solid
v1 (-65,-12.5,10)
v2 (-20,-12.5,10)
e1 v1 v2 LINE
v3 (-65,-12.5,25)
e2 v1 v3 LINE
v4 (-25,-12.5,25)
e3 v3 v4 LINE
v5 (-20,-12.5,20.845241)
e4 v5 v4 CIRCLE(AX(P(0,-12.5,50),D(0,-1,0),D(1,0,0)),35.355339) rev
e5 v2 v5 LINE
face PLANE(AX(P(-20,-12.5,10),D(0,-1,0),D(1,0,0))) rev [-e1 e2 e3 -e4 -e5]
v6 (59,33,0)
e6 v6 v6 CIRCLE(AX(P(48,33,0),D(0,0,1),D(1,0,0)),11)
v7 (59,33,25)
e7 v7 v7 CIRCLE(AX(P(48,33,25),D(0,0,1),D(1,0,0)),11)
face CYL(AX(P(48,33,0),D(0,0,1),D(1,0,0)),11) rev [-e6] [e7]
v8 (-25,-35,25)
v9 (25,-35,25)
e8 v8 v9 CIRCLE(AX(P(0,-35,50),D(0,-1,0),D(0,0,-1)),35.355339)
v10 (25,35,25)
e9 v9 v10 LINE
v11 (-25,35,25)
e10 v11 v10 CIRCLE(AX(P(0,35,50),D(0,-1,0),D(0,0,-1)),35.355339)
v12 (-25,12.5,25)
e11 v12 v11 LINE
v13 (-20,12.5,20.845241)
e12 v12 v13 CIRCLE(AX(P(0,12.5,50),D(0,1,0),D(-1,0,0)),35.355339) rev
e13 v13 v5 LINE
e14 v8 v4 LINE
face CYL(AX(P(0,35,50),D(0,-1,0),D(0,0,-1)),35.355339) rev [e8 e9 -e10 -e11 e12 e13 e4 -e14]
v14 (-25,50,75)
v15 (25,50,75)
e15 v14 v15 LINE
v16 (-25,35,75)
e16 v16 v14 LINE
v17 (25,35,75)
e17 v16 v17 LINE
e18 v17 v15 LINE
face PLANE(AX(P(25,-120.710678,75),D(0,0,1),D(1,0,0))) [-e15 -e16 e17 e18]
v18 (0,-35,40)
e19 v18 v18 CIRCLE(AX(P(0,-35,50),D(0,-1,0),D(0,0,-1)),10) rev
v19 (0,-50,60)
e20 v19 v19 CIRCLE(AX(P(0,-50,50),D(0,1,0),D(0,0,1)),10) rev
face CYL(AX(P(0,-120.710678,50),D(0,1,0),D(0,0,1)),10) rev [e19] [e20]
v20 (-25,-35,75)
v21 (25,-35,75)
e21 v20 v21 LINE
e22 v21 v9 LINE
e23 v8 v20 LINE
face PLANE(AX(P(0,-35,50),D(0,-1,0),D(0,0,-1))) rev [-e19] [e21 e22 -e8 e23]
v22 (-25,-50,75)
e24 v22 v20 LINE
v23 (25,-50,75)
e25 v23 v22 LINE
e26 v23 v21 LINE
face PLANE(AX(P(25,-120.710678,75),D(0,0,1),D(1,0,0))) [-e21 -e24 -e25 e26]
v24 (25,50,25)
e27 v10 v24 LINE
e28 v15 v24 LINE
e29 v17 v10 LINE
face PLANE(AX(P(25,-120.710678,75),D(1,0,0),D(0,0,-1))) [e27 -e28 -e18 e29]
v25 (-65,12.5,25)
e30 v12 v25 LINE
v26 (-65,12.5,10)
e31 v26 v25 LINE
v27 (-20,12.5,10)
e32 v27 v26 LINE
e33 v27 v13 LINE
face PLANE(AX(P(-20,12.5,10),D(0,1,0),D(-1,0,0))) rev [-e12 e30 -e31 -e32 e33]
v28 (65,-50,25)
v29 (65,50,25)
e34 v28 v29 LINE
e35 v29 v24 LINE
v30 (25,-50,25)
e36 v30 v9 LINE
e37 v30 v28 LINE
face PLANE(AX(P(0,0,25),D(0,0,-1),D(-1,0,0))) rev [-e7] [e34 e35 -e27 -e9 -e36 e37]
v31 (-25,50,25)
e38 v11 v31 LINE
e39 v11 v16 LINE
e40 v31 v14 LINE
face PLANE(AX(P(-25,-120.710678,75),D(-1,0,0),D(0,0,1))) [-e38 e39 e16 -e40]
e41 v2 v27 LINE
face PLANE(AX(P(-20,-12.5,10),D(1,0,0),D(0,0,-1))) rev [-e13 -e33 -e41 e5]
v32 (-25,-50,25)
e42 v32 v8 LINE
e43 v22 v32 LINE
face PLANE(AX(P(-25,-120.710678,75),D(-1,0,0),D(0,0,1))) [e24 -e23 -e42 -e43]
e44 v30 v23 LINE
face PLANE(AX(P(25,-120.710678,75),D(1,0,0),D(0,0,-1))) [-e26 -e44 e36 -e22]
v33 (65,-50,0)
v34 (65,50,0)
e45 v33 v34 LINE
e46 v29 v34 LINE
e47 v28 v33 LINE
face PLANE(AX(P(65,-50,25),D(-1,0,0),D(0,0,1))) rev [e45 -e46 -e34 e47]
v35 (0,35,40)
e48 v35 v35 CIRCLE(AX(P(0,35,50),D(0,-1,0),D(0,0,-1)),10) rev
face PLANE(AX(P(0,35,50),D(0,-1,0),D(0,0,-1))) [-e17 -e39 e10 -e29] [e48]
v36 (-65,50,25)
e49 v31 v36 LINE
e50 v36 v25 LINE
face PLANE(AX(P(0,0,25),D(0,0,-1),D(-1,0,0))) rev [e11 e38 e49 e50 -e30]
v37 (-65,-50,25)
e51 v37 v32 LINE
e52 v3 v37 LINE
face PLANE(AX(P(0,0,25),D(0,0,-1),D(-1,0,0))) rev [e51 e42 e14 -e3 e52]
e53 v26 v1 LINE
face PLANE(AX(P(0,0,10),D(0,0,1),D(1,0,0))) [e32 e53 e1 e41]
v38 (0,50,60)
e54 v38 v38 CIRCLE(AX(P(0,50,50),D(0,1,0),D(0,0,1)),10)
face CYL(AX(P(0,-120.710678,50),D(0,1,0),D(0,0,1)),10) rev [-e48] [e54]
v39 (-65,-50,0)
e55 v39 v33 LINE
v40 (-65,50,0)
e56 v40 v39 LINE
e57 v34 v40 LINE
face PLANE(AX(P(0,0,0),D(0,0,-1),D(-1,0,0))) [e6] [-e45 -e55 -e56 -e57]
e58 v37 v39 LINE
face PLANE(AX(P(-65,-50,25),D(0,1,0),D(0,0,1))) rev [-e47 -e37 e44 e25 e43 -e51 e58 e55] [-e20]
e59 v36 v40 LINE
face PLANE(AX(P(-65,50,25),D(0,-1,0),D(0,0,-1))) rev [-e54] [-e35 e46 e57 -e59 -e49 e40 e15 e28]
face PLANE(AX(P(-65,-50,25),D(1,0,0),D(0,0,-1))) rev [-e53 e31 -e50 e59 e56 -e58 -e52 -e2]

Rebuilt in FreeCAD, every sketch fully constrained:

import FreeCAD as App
import Part
import Sketcher

doc = App.newDocument("Part")
body = doc.addObject("PartDesign::Body", "Body")

# Sketch on XY plane
sketch1 = body.newObject("Sketcher::SketchObject", "Sketch")
sketch1.AttachmentSupport = (doc.getObject("XY_Plane"), [""])
sketch1.MapMode = "FlatFace"
sketch1.addGeometry(Part.LineSegment(App.Vector(-65, 50, 0), App.Vector(-65, -50, 0)), False)
sketch1.addGeometry(Part.LineSegment(App.Vector(-65, -50, 0), App.Vector(65, -50, 0)), False)
sketch1.addGeometry(Part.LineSegment(App.Vector(65, -50, 0), App.Vector(65, 50, 0)), False)
sketch1.addGeometry(Part.LineSegment(App.Vector(65, 50, 0), App.Vector(-65, 50, 0)), False)
sketch1.addConstraint(Sketcher.Constraint("Coincident", 0, 2, 1, 1))
sketch1.addConstraint(Sketcher.Constraint("Coincident", 1, 2, 2, 1))
sketch1.addConstraint(Sketcher.Constraint("Coincident", 2, 2, 3, 1))
sketch1.addConstraint(Sketcher.Constraint("Coincident", 3, 2, 0, 1))
sketch1.addConstraint(Sketcher.Constraint("Vertical", 0))
sketch1.addConstraint(Sketcher.Constraint("Horizontal", 1))
sketch1.addConstraint(Sketcher.Constraint("Vertical", 2))
sketch1.addConstraint(Sketcher.Constraint("Horizontal", 3))
sketch1.addConstraint(Sketcher.Constraint("Symmetric", 0, 2, 2, 2, -1, 1))
sketch1.addConstraint(Sketcher.Constraint("DistanceX", 1, 1, 1, 2, 130.0))
sketch1.addConstraint(Sketcher.Constraint("DistanceY", 0, 2, 0, 1, 100.0))
pad1 = body.newObject("PartDesign::Pad", "Pad")
pad1.Profile = sketch1
pad1.Length = 25

# Sketch on XZ plane
sketch2 = body.newObject("Sketcher::SketchObject", "Sketch001")
sketch2.AttachmentSupport = (doc.getObject("XZ_Plane"), [""])
sketch2.MapMode = "FlatFace"
sketch2.AttachmentOffset = App.Placement(App.Vector(0, 0, -50), App.Rotation())
sketch2.addGeometry(Part.LineSegment(App.Vector(-25, 25, 0), App.Vector(-25, 75, 0)), False)
sketch2.addGeometry(Part.LineSegment(App.Vector(-25, 75, 0), App.Vector(25, 75, 0)), False)
sketch2.addGeometry(Part.LineSegment(App.Vector(25, 75, 0), App.Vector(25, 25, 0)), False)
sketch2.addGeometry(Part.LineSegment(App.Vector(25, 25, 0), App.Vector(-25, 25, 0)), False)
sketch2.addGeometry(Part.Circle(App.Vector(0, 50, 0), App.Vector(0, 0, 1), 10), False)
sketch2.addConstraint(Sketcher.Constraint("Coincident", 0, 2, 1, 1))
sketch2.addConstraint(Sketcher.Constraint("Coincident", 1, 2, 2, 1))
sketch2.addConstraint(Sketcher.Constraint("Coincident", 2, 2, 3, 1))
sketch2.addConstraint(Sketcher.Constraint("Coincident", 3, 2, 0, 1))
sketch2.addConstraint(Sketcher.Constraint("Vertical", 0))
sketch2.addConstraint(Sketcher.Constraint("Horizontal", 1))
sketch2.addConstraint(Sketcher.Constraint("Vertical", 2))
sketch2.addConstraint(Sketcher.Constraint("Horizontal", 3))
sketch2.addConstraint(Sketcher.Constraint("PointOnObject", 4, 3, -2))
sketch2.addConstraint(Sketcher.Constraint("Equal", 3, 0))
sketch2.addConstraint(Sketcher.Constraint("Diameter", 4, 20.0))
sketch2.addConstraint(Sketcher.Constraint("DistanceX", 1, 1, 1, 2, 50.0))
sketch2.addConstraint(Sketcher.Constraint("DistanceY", -1, 1, 4, 3, 50.0))
sketch2.addConstraint(Sketcher.Constraint("DistanceX", 0, 2, -1, 1, 25.0))
sketch2.addConstraint(Sketcher.Constraint("DistanceY", -1, 1, 0, 2, 75.0))
pad2 = body.newObject("PartDesign::Pad", "Pad001")
pad2.Profile = sketch2
pad2.Length = 100

# Sketch on XY plane
sketch3 = body.newObject("Sketcher::SketchObject", "Sketch002")
sketch3.AttachmentSupport = (doc.getObject("XY_Plane"), [""])
sketch3.MapMode = "FlatFace"
sketch3.AttachmentOffset = App.Placement(App.Vector(0, 0, 25), App.Rotation())
sketch3.addGeometry(Part.Circle(App.Vector(48, 33, 0), App.Vector(0, 0, 1), 11), False)
sketch3.addConstraint(Sketcher.Constraint("Diameter", 0, 22.0))
sketch3.addConstraint(Sketcher.Constraint("DistanceX", -1, 1, 0, 3, 48.0))
sketch3.addConstraint(Sketcher.Constraint("DistanceY", -1, 1, 0, 3, 33.0))
pocket1 = body.newObject("PartDesign::Pocket", "Pocket")
pocket1.Profile = sketch3
pocket1.Type = "ThroughAll"

# Sketch on XZ plane
sketch4 = body.newObject("Sketcher::SketchObject", "Sketch003")
sketch4.AttachmentSupport = (doc.getObject("XZ_Plane"), [""])
sketch4.MapMode = "FlatFace"
sketch4.addGeometry(Part.Circle(App.Vector(0, 50, 0), App.Vector(0, 0, 1), 35), False)
sketch4.addConstraint(Sketcher.Constraint("PointOnObject", 0, 3, -2))
sketch4.addConstraint(Sketcher.Constraint("DistanceY", -1, 1, 0, 3, 50.0))
sketch4.addConstraint(Sketcher.Constraint("Diameter", 0, 70.710678))
pocket2 = body.newObject("PartDesign::Pocket", "Pocket001")
pocket2.Profile = sketch4
pocket2.Length = 70
pocket2.Midplane = True

# Sketch on XY plane
sketch5 = body.newObject("Sketcher::SketchObject", "Sketch004")
sketch5.AttachmentSupport = (doc.getObject("XY_Plane"), [""])
sketch5.MapMode = "FlatFace"
sketch5.AttachmentOffset = App.Placement(App.Vector(0, 0, 25), App.Rotation())
sketch5.addGeometry(Part.LineSegment(App.Vector(-65, 12, 0), App.Vector(-65, -12, 0)), False)
sketch5.addGeometry(Part.LineSegment(App.Vector(-65, -12, 0), App.Vector(-20, -12, 0)), False)
sketch5.addGeometry(Part.LineSegment(App.Vector(-20, -12, 0), App.Vector(-20, 12, 0)), False)
sketch5.addGeometry(Part.LineSegment(App.Vector(-20, 12, 0), App.Vector(-65, 12, 0)), False)
sketch5.addConstraint(Sketcher.Constraint("Coincident", 0, 2, 1, 1))
sketch5.addConstraint(Sketcher.Constraint("Coincident", 1, 2, 2, 1))
sketch5.addConstraint(Sketcher.Constraint("Coincident", 2, 2, 3, 1))
sketch5.addConstraint(Sketcher.Constraint("Coincident", 3, 2, 0, 1))
sketch5.addConstraint(Sketcher.Constraint("Vertical", 0))
sketch5.addConstraint(Sketcher.Constraint("Horizontal", 1))
sketch5.addConstraint(Sketcher.Constraint("Vertical", 2))
sketch5.addConstraint(Sketcher.Constraint("Horizontal", 3))
sketch5.addConstraint(Sketcher.Constraint("DistanceX", 1, 1, 1, 2, 45.0))
sketch5.addConstraint(Sketcher.Constraint("DistanceY", 0, 2, 0, 1, 25.0))
sketch5.addConstraint(Sketcher.Constraint("DistanceX", 0, 2, -1, 1, 65.0))
sketch5.addConstraint(Sketcher.Constraint("DistanceY", 0, 2, -1, 1, 12.5))
pocket3 = body.newObject("PartDesign::Pocket", "Pocket002")
pocket3.Profile = sketch5
pocket3.Length = 15

doc.recompute()
